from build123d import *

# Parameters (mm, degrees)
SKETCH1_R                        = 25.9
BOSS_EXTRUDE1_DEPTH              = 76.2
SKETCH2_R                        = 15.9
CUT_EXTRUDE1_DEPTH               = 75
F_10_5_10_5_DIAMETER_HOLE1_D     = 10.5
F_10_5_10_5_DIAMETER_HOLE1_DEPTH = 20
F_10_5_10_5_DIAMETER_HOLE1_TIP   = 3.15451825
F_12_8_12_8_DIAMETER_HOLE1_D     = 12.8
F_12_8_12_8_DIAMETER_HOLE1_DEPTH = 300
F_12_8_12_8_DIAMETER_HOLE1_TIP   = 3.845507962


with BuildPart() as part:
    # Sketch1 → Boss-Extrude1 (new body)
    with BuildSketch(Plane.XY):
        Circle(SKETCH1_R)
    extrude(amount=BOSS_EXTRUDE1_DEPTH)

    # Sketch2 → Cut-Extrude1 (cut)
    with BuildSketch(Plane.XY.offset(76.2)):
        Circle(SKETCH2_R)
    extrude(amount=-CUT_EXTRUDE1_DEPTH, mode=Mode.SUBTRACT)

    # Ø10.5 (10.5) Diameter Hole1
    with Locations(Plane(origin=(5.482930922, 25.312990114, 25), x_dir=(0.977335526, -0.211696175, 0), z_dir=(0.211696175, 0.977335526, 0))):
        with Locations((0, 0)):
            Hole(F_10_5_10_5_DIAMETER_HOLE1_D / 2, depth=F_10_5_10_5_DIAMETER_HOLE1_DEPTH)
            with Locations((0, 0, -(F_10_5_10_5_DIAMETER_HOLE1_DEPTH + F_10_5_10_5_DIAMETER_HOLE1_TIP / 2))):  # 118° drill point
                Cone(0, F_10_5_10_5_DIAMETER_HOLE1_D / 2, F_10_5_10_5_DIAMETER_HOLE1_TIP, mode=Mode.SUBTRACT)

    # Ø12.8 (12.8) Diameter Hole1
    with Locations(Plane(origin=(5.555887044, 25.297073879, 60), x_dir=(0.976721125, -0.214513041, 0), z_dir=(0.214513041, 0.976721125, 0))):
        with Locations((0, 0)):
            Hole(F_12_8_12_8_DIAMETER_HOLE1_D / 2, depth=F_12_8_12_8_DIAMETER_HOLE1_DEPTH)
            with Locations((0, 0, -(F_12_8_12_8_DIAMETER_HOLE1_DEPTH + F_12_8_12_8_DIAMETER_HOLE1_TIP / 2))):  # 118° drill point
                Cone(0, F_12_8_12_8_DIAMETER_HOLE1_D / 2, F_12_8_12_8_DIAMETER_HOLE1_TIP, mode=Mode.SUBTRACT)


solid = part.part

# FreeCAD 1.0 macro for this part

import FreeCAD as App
import Part
import Sketcher
Q = App.Units.Quantity

doc = App.newDocument("Part")
body = doc.addObject("PartDesign::Body", "Body")

# Sketch on XY plane
sketch1 = doc.addObject("Sketcher::SketchObject", "Sketch")
body.addObject(sketch1)
sketch1.AttachmentSupport = (doc.XY_Plane, [""])
sketch1.MapMode = "FlatFace"
sketch1.addGeometry(Part.Circle(App.Vector(0, 0, 0), App.Vector(0, 0, 1), 26), False)
sketch1.addConstraint(Sketcher.Constraint("Coincident", 0, 3, -1, 1))
sketch1.addConstraint(Sketcher.Constraint("Diameter", 0, Q("51.8 mm")))
pad1 = doc.addObject("PartDesign::Pad", "Pad")
body.addObject(pad1)
pad1.Profile = sketch1
pad1.Length = 76.2

# Sketch on XY plane
sketch2 = doc.addObject("Sketcher::SketchObject", "Sketch001")
body.addObject(sketch2)
sketch2.AttachmentSupport = (doc.XY_Plane, [""])
sketch2.MapMode = "FlatFace"
sketch2.AttachmentOffset = App.Placement(App.Vector(0, 0, 76.2), App.Rotation())
sketch2.addGeometry(Part.Circle(App.Vector(0, 0, 0), App.Vector(0, 0, 1), 16), False)
sketch2.addConstraint(Sketcher.Constraint("Coincident", 0, 3, -1, 1))
sketch2.addConstraint(Sketcher.Constraint("Diameter", 0, Q("31.8 mm")))
pocket1 = doc.addObject("PartDesign::Pocket", "Pocket")
body.addObject(pocket1)
pocket1.Profile = sketch2
pocket1.Length = 75

# Sketch on an angled plane
sketch3 = doc.addObject("Sketcher::SketchObject", "Sketch002")
body.addObject(sketch3)
sketch3.Placement = App.Placement(App.Vector(5.482931, 25.31299, 0), App.Rotation(App.Vector(0.977335526, -0.211696175, 0), App.Vector(0, 0, -1.000000001), App.Vector(0.211696175, 0.977335526, 0), "ZXY"))
sketch3.addGeometry(Part.Circle(App.Vector(0, -25, 0), App.Vector(0, 0, 1), 5), False)
sketch3.addConstraint(Sketcher.Constraint("PointOnObject", 0, 3, -2))
sketch3.addConstraint(Sketcher.Constraint("Diameter", 0, Q("10.5 mm")))
sketch3.addConstraint(Sketcher.Constraint("DistanceY", 0, 3, -1, 1, Q("25 mm")))
doc.recompute()
hole = doc.addObject("PartDesign::Hole", "Hole")
body.addObject(hole)
hole.Profile = sketch3
hole.ThreadType = "None"
hole.Diameter = 10.5
hole.DepthType = "Dimension"
hole.Depth = 20
hole.DrillPoint = "Angled"
hole.DrillPointAngle = 118

# Sketch on an angled plane
sketch4 = doc.addObject("Sketcher::SketchObject", "Sketch003")
body.addObject(sketch4)
sketch4.Placement = App.Placement(App.Vector(5.555887, 25.297074, 0), App.Rotation(App.Vector(0.976721125, -0.214513041, 0), App.Vector(0, 0, -1.000000001), App.Vector(0.214513041, 0.976721125, 0), "ZXY"))
sketch4.addGeometry(Part.Circle(App.Vector(0, -60, 0), App.Vector(0, 0, 1), 6), False)
sketch4.addConstraint(Sketcher.Constraint("PointOnObject", 0, 3, -2))
sketch4.addConstraint(Sketcher.Constraint("Diameter", 0, Q("12.8 mm")))
sketch4.addConstraint(Sketcher.Constraint("DistanceY", 0, 3, -1, 1, Q("60 mm")))
doc.recompute()
hole2 = doc.addObject("PartDesign::Hole", "Hole001")
body.addObject(hole2)
hole2.Profile = sketch4
hole2.ThreadType = "None"
hole2.Diameter = 12.8
hole2.DepthType = "Dimension"
hole2.Depth = 300
hole2.DrillPoint = "Angled"
hole2.DrillPointAngle = 118

doc.recompute()
